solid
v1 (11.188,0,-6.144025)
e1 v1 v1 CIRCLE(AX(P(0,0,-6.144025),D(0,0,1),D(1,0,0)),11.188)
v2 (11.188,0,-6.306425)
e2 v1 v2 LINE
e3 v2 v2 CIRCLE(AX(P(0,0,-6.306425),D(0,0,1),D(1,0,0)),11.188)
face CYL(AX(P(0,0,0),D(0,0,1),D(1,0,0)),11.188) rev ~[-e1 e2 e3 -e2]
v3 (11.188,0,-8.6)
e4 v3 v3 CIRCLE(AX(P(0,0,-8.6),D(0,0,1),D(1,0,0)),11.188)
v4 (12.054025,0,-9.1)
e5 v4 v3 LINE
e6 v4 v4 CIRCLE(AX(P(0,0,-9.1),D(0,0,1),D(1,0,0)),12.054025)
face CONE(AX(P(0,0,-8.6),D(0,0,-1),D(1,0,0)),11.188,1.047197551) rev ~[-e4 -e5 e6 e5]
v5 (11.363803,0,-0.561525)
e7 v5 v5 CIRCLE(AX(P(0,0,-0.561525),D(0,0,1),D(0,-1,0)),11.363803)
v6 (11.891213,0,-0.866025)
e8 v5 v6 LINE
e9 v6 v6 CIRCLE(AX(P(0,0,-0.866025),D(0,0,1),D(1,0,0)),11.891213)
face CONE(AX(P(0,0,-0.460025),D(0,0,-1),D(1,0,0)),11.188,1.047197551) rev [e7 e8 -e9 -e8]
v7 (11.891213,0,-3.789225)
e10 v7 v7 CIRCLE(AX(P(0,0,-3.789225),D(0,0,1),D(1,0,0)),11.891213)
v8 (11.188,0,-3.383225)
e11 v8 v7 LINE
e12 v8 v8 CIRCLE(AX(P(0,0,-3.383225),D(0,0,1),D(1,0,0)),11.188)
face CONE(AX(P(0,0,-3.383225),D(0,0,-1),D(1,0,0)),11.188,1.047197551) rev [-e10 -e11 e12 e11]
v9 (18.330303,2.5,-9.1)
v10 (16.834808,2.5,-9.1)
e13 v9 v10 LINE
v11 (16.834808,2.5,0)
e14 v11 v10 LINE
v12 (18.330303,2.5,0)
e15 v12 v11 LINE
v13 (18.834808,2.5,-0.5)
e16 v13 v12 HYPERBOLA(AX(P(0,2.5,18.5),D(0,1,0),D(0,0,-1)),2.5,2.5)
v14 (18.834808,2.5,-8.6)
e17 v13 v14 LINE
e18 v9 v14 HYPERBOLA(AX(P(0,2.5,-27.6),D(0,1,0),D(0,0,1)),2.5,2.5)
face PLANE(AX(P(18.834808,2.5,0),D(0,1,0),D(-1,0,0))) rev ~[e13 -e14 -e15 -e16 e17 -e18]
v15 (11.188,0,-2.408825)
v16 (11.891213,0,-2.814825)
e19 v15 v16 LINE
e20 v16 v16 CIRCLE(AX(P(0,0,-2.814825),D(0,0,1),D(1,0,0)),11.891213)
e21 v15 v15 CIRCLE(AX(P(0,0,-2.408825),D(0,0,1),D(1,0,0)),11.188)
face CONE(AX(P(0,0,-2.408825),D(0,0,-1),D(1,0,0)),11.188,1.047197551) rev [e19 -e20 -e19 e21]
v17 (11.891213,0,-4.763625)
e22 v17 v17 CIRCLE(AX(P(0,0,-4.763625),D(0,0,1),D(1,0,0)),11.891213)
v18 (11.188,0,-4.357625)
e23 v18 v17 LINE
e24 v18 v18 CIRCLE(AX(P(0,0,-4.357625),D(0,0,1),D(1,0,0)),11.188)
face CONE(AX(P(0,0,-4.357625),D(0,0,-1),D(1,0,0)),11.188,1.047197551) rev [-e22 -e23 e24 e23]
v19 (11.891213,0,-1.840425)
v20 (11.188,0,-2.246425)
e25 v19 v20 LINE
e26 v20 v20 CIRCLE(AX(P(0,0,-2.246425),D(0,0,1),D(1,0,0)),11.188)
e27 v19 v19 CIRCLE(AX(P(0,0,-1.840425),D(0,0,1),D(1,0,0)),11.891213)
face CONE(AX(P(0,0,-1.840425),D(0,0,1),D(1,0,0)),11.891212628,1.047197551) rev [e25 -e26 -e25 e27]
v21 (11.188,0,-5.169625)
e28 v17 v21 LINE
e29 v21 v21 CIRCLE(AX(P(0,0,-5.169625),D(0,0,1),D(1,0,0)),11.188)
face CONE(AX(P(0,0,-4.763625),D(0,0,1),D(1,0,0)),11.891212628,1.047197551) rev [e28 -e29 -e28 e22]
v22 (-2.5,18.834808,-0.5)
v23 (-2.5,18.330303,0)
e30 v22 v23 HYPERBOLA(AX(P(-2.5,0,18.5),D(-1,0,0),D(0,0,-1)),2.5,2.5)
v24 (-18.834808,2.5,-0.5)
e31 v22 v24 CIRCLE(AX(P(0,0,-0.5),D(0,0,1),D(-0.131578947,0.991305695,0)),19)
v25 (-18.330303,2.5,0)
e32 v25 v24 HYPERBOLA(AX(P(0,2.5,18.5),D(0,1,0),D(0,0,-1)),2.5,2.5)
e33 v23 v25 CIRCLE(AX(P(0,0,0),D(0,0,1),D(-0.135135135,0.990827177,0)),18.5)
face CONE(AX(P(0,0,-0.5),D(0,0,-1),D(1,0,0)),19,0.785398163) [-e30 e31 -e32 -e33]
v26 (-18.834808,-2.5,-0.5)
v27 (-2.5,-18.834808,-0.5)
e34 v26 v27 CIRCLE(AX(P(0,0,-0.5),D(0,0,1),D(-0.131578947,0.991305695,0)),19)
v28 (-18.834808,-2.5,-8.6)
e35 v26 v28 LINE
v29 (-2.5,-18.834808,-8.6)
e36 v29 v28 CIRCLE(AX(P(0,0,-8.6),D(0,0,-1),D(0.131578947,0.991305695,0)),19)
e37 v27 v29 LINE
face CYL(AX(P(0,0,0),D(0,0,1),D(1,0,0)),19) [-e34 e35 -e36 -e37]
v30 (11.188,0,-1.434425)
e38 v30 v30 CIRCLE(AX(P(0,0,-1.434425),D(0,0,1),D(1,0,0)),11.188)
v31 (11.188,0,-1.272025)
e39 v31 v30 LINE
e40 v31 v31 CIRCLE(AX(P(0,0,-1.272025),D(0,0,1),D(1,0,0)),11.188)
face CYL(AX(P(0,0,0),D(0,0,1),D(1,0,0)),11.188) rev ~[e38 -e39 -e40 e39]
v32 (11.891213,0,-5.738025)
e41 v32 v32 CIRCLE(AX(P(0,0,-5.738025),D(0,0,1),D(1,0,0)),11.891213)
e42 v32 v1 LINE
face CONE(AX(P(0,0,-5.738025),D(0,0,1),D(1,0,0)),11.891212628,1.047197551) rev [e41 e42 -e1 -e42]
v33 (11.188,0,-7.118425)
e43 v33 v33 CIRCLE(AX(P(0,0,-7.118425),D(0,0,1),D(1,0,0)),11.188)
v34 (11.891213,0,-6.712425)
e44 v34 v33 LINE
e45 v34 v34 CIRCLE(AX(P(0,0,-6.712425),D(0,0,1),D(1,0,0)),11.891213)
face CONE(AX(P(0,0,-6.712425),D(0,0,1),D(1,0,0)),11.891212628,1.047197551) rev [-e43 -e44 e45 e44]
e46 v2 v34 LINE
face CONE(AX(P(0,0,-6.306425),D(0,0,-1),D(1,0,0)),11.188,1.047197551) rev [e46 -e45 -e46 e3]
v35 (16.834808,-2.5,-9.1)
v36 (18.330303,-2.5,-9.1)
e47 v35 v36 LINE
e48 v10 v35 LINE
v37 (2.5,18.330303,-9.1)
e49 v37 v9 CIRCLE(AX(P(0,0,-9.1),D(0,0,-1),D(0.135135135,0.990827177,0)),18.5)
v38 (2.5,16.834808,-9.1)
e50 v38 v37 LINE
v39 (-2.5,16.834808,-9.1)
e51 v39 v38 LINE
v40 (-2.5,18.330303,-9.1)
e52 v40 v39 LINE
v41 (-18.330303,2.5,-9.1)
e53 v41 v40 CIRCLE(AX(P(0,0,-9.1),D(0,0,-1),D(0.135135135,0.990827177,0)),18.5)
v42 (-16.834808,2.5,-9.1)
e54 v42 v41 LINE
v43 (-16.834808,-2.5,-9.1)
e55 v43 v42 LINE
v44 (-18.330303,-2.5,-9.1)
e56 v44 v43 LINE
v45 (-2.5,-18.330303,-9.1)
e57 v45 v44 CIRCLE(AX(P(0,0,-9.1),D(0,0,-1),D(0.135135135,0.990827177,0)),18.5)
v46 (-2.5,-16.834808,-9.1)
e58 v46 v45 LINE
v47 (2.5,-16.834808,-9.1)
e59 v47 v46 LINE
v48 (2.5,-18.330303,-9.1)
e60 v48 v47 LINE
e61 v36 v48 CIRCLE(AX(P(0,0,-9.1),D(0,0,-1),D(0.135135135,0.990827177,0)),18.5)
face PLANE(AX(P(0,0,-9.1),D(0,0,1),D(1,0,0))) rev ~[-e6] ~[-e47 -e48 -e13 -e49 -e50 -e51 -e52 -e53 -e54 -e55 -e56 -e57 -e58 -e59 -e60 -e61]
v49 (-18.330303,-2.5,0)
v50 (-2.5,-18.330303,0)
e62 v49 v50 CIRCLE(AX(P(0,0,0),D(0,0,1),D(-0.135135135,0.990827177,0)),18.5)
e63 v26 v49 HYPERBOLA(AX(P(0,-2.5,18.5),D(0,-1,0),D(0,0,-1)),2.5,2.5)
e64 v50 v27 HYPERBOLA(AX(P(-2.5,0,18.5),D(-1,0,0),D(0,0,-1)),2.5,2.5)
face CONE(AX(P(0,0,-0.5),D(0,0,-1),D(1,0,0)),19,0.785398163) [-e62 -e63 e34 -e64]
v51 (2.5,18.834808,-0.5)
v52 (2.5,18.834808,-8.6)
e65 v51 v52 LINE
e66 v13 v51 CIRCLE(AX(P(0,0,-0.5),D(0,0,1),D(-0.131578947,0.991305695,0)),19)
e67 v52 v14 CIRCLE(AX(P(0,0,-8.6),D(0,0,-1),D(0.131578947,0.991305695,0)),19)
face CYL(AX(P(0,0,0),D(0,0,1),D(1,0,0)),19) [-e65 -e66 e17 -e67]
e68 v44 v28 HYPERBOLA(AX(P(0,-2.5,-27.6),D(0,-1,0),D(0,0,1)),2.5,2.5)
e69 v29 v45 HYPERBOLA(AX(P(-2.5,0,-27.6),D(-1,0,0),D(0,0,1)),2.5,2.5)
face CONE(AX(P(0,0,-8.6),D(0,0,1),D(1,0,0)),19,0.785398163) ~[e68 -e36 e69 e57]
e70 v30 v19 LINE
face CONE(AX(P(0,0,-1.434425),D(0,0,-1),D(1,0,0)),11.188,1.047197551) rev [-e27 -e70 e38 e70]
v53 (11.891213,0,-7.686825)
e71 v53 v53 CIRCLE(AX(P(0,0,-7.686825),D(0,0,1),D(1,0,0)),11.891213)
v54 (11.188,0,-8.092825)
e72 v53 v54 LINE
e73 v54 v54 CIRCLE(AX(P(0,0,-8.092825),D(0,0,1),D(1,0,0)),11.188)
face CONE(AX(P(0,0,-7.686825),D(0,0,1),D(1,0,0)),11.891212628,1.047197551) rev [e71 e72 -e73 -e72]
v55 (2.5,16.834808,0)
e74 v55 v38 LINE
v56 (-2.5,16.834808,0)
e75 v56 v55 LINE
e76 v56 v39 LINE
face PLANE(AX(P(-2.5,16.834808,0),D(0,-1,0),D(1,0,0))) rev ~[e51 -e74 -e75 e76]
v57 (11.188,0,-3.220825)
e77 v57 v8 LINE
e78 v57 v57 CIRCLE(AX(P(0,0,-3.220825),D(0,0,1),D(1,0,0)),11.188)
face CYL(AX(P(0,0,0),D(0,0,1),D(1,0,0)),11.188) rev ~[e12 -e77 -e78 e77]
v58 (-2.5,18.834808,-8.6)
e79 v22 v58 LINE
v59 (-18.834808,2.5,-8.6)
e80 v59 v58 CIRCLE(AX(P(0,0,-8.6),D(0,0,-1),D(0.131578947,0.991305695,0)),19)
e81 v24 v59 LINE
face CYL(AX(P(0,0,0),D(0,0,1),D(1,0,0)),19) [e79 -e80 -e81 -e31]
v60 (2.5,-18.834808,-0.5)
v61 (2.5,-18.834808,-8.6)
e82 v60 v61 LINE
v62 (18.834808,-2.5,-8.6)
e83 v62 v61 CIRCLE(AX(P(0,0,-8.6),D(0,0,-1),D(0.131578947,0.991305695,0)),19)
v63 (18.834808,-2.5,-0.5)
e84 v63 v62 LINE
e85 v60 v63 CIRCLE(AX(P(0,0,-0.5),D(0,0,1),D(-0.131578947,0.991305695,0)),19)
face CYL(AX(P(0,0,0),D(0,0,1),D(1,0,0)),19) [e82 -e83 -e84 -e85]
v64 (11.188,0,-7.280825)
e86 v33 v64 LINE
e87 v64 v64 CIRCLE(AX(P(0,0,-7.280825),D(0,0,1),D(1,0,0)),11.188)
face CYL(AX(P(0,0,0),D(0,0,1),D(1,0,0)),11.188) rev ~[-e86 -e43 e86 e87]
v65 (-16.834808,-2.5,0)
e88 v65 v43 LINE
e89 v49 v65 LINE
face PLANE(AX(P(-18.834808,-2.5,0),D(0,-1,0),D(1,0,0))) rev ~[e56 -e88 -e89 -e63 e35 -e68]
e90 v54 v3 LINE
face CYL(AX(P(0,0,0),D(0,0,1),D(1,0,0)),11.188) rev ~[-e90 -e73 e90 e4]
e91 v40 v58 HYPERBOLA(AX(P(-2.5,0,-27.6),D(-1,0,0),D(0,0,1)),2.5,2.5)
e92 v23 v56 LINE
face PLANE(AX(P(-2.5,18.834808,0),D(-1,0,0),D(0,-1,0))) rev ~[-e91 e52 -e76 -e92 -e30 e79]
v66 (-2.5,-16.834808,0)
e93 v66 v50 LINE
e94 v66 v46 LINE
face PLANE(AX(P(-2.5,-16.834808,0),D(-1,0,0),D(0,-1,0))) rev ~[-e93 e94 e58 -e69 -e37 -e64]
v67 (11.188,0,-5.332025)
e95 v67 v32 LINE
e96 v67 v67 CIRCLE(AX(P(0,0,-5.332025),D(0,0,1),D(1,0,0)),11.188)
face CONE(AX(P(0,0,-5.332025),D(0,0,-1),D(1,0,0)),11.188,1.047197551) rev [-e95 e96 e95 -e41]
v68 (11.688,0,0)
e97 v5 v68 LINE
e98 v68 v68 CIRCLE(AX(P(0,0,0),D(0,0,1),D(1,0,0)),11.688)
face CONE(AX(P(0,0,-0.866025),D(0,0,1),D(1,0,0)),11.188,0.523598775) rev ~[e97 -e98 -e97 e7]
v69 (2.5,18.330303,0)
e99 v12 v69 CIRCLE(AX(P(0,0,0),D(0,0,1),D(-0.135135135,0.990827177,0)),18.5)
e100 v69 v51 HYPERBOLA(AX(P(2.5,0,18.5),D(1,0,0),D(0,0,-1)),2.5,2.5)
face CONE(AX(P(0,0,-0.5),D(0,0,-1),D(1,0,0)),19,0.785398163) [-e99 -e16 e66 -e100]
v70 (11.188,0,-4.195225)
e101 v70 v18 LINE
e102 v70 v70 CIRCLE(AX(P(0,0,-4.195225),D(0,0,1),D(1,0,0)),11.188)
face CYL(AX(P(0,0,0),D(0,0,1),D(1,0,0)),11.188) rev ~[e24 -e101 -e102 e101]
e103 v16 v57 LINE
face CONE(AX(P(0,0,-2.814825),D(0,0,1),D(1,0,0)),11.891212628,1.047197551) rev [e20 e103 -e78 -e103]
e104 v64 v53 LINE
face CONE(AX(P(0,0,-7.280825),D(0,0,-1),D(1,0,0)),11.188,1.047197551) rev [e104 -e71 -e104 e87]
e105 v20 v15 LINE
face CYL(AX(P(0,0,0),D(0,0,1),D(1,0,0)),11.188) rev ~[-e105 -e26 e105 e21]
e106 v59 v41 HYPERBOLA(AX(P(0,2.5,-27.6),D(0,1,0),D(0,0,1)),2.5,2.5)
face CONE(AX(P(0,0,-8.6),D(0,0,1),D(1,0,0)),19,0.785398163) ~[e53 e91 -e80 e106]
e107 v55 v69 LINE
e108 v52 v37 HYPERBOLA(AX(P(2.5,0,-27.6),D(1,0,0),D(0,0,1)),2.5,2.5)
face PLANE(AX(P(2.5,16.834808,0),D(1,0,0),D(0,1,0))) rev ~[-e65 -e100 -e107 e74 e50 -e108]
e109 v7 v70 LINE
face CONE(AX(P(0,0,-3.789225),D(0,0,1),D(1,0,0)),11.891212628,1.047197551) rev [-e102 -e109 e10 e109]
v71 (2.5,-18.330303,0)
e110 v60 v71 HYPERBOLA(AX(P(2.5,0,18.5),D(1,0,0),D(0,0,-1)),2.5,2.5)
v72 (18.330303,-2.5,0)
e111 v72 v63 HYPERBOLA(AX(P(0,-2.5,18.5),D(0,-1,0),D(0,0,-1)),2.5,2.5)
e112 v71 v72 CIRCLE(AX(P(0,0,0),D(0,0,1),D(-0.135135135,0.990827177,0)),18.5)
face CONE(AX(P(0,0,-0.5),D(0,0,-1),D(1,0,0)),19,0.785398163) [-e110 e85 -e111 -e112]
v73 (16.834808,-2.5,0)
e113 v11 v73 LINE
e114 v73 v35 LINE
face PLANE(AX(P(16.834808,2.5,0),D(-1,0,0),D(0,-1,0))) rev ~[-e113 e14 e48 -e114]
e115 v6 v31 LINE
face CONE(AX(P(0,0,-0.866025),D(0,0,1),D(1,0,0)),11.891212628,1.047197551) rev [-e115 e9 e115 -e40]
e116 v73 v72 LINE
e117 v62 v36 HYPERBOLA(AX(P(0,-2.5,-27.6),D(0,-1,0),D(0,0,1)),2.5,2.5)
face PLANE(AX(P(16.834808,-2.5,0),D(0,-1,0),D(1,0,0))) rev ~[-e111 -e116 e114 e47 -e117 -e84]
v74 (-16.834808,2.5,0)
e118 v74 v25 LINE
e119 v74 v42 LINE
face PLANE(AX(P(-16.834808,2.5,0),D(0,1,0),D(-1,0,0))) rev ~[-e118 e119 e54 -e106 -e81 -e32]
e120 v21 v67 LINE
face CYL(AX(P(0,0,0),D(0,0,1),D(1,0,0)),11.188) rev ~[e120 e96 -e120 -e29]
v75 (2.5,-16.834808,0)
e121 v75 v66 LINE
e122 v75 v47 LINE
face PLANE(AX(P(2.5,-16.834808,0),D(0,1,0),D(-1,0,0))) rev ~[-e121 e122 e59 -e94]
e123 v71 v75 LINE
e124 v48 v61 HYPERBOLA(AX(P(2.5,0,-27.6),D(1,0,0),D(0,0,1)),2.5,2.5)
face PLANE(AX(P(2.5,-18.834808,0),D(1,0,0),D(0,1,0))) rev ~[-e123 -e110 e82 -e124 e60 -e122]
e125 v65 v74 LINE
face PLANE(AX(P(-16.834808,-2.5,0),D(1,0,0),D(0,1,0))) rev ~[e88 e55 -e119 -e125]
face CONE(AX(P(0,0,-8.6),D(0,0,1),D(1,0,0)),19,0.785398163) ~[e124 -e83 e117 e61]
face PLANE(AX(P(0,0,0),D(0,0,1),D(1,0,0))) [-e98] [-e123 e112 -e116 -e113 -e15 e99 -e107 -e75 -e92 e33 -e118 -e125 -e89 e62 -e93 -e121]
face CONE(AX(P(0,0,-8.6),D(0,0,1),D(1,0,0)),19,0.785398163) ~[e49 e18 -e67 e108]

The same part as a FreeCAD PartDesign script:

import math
import FreeCAD as App
import Part
import Sketcher
Q = App.Units.Quantity


def edges_at(feature, points):
    """Names of the edges that pass closest to the given points."""
    edges = feature.Shape.Edges
    near = lambda p: min(range(len(edges)), key=lambda i: edges[i].distToShape(Part.Vertex(*p))[0])
    return sorted({f"Edge{near(p) + 1}" for p in points})

doc = App.newDocument("Part")
body = doc.addObject("PartDesign::Body", "Body")

# Sketch on XY plane
sketch1 = body.newObject("Sketcher::SketchObject", "Sketch")
sketch1.AttachmentSupport = (doc.getObject("XY_Plane"), [""])
sketch1.MapMode = "FlatFace"
sketch1.addGeometry(Part.Circle(App.Vector(0, 0, 0), App.Vector(0, 0, 1), 19), False)
sketch1.addConstraint(Sketcher.Constraint("Coincident", 0, 3, -1, 1))
sketch1.addConstraint(Sketcher.Constraint("Diameter", 0, 38.0))
pad1 = body.newObject("PartDesign::Pad", "Pad")
pad1.Profile = sketch1
pad1.Length = 9.1
pad1.Reversed = True
doc.recompute()

chamfer = body.newObject("PartDesign::Chamfer", "Chamfer")
chamfer.Base = (pad1, edges_at(pad1, [(-19, 0, 0), (-19, 0, -9.1)]))
chamfer.Size = 0.5

# Sketch on XY plane
sketch2 = body.newObject("Sketcher::SketchObject", "Sketch001")
sketch2.AttachmentSupport = (doc.getObject("XY_Plane"), [""])
sketch2.MapMode = "FlatFace"
sketch2.addGeometry(Part.Circle(App.Vector(0, 0, 0), App.Vector(0, 0, 1), 11), False)
sketch2.addConstraint(Sketcher.Constraint("Coincident", 0, 3, -1, 1))
sketch2.addConstraint(Sketcher.Constraint("Diameter", 0, 22.376))
pocket1 = body.newObject("PartDesign::Pocket", "Pocket")
pocket1.Profile = sketch2
pocket1.Type = "ThroughAll"
doc.recompute()

chamfer2 = body.newObject("PartDesign::Chamfer", "Chamfer001")
chamfer2.Base = (pocket1, edges_at(pocket1, [(-11.188, 0, -9.1)]))
chamfer2.ChamferType = "Two distances"
chamfer2.Size = 0.866025
chamfer2.Size2 = 0.5
doc.recompute()

chamfer3 = body.newObject("PartDesign::Chamfer", "Chamfer002")
chamfer3.Base = (chamfer2, edges_at(chamfer2, [(-11.188, 0, 0)]))
chamfer3.ChamferType = "Two distances"
chamfer3.Size = 0.866025
chamfer3.Size2 = 0.5

# Sketch on XY plane
sketch3 = body.newObject("Sketcher::SketchObject", "Sketch002")
sketch3.AttachmentSupport = (doc.getObject("XY_Plane"), [""])
sketch3.MapMode = "FlatFace"
sketch3.addGeometry(Part.LineSegment(App.Vector(-2.5, 18.8, 0), App.Vector(-2.5, 16.8, 0)), False)
sketch3.addGeometry(Part.LineSegment(App.Vector(-2.5, 16.8, 0), App.Vector(2.5, 16.8, 0)), False)
sketch3.addGeometry(Part.LineSegment(App.Vector(2.5, 16.8, 0), App.Vector(2.5, 18.8, 0)), False)
sketch3.addGeometry(Part.ArcOfCircle(Part.Circle(App.Vector(0, 0, 0), App.Vector(0, 0, 1), 19), math.radians(82.44), math.radians(97.56)), False)
sketch3.addConstraint(Sketcher.Constraint("Coincident", 0, 2, 1, 1))
sketch3.addConstraint(Sketcher.Constraint("Coincident", 1, 2, 2, 1))
sketch3.addConstraint(Sketcher.Constraint("Coincident", 2, 2, 3, 1))
sketch3.addConstraint(Sketcher.Constraint("Coincident", 3, 2, 0, 1))
sketch3.addConstraint(Sketcher.Constraint("Vertical", 0))
sketch3.addConstraint(Sketcher.Constraint("Horizontal", 1))
sketch3.addConstraint(Sketcher.Constraint("Vertical", 2))
sketch3.addConstraint(Sketcher.Constraint("Coincident", 3, 3, -1, 1))
sketch3.addConstraint(Sketcher.Constraint("Horizontal", 2, 2, 3, 2))
sketch3.addConstraint(Sketcher.Constraint("Radius", 3, 19.0))
sketch3.addConstraint(Sketcher.Constraint("DistanceX", 1, 1, 1, 2, 5.0))
sketch3.addConstraint(Sketcher.Constraint("DistanceY", 0, 2, 0, 1, 2.0))
pocket2 = body.newObject("PartDesign::Pocket", "Pocket001")
pocket2.Profile = sketch3
pocket2.Type = "ThroughAll"
doc.recompute()

polarpattern = body.newObject("PartDesign::PolarPattern", "PolarPattern")
polarpattern.Originals = [pocket2]
polarpattern.Axis = (doc.getObject("Z_Axis"), [""])
polarpattern.Angle = 360
polarpattern.Occurrences = 4
body.Tip = polarpattern

# Sketch on XZ plane
sketch4 = body.newObject("Sketcher::SketchObject", "Sketch003")
sketch4.AttachmentSupport = (doc.getObject("XZ_Plane"), [""])
sketch4.MapMode = "FlatFace"
sketch4.addGeometry(Part.LineSegment(App.Vector(10.4, -1.3, 0), App.Vector(10.4, -0.5, 0)), False)
sketch4.addGeometry(Part.LineSegment(App.Vector(10.4, -0.5, 0), App.Vector(11.2, -0.5, 0)), False)
sketch4.addGeometry(Part.LineSegment(App.Vector(11.2, -0.5, 0), App.Vector(11.9, -0.9, 0)), False)
sketch4.addGeometry(Part.LineSegment(App.Vector(11.9, -0.9, 0), App.Vector(11.2, -1.3, 0)), False)
sketch4.addGeometry(Part.LineSegment(App.Vector(11.2, -1.3, 0), App.Vector(10.4, -1.3, 0)), False)
sketch4.addConstraint(Sketcher.Constraint("Coincident", 0, 2, 1, 1))
sketch4.addConstraint(Sketcher.Constraint("Coincident", 1, 2, 2, 1))
sketch4.addConstraint(Sketcher.Constraint("Coincident", 2, 2, 3, 1))
sketch4.addConstraint(Sketcher.Constraint("Coincident", 3, 2, 4, 1))
sketch4.addConstraint(Sketcher.Constraint("Coincident", 4, 2, 0, 1))
sketch4.addConstraint(Sketcher.Constraint("Vertical", 0))
sketch4.addConstraint(Sketcher.Constraint("Horizontal", 1))
sketch4.addConstraint(Sketcher.Constraint("Horizontal", 4))
sketch4.addConstraint(Sketcher.Constraint("Vertical", 1, 2, 3, 2))
sketch4.addConstraint(Sketcher.Constraint("Equal", 4, 0))
sketch4.addConstraint(Sketcher.Constraint("Equal", 2, 3))
sketch4.addConstraint(Sketcher.Constraint("Angle", 2, Q("-30 deg")))
sketch4.addConstraint(Sketcher.Constraint("DistanceX", 1, 1, 1, 2, 0.812))
sketch4.addConstraint(Sketcher.Constraint("DistanceX", -1, 1, 0, 2, 10.376))
sketch4.addConstraint(Sketcher.Constraint("DistanceY", 0, 2, -1, 1, 0.460025))
groove = body.newObject("PartDesign::Groove", "Groove")
groove.Profile = sketch4
groove.ReferenceAxis = (sketch4, ["V_Axis"])
groove.Angle = 360
doc.recompute()

linearpattern = body.newObject("PartDesign::LinearPattern", "LinearPattern")
linearpattern.Originals = [groove]
linearpattern.Direction = (doc.getObject("Z_Axis"), [""])
linearpattern.Mode = "offset"
linearpattern.Offset = 0.9744
linearpattern.Occurrences = 8
linearpattern.Reversed = True
body.Tip = linearpattern

doc.recompute()
